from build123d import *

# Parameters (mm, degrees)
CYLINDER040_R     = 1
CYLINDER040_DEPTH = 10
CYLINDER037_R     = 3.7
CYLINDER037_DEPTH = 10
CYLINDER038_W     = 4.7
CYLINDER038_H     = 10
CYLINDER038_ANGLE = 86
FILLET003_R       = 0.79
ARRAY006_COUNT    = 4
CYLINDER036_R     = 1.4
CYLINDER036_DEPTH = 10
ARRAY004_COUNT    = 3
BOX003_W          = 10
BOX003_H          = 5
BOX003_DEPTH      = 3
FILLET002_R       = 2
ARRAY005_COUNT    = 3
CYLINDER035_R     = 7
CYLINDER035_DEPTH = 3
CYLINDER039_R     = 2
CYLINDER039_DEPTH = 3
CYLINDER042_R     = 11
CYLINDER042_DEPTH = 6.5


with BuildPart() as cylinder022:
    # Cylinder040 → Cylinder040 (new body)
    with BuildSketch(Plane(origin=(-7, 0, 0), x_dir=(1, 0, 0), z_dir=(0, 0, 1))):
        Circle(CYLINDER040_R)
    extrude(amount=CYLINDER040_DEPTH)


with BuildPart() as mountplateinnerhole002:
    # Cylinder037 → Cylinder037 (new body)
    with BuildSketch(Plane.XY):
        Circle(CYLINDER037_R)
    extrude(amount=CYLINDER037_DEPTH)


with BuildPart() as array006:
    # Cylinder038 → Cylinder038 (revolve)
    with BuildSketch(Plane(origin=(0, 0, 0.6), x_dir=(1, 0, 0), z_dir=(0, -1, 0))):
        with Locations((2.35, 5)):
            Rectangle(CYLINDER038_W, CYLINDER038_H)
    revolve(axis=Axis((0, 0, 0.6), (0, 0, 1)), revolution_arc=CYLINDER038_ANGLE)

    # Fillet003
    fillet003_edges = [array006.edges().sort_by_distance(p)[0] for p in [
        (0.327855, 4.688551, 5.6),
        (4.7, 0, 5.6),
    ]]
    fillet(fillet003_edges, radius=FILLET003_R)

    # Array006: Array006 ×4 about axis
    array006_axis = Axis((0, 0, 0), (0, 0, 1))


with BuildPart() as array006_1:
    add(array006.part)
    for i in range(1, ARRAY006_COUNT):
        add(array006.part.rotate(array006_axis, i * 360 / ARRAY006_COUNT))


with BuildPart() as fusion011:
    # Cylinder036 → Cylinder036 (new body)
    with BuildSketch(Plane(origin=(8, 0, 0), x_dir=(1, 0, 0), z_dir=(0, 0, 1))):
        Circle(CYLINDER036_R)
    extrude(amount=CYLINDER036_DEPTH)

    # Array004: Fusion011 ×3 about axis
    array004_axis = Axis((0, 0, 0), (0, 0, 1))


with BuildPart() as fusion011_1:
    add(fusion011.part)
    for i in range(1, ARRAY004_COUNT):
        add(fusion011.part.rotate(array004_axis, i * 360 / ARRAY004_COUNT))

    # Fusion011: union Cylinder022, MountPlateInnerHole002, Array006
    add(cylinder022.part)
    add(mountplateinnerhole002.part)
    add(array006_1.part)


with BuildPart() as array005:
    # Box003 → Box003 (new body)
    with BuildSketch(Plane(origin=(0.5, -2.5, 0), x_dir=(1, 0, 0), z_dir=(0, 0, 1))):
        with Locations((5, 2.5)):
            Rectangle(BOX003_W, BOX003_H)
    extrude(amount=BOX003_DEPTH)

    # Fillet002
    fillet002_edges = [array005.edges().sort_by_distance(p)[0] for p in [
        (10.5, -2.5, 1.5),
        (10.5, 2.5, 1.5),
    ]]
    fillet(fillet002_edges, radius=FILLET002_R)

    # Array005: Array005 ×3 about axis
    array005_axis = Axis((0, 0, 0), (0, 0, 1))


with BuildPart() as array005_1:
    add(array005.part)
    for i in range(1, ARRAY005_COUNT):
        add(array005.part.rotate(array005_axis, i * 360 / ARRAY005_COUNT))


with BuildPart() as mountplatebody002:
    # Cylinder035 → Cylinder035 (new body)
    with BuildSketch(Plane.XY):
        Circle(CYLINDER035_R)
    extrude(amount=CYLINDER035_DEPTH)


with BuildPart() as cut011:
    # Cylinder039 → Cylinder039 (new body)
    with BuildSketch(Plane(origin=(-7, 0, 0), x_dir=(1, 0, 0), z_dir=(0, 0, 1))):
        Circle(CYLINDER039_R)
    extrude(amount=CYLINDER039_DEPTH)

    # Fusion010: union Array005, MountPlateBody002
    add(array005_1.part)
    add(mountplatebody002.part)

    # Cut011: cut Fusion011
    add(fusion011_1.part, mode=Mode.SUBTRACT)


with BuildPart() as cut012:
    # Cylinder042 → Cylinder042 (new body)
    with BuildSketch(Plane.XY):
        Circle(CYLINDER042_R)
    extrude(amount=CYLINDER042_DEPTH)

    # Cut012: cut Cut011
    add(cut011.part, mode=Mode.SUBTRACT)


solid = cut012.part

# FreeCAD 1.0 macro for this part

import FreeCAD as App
import Part
import Sketcher
from FreeCAD import Vector


def edges_at(feature, points):
    """Names of the edges that pass closest to the given points."""
    edges = feature.Shape.Edges
    near = lambda p: min(range(len(edges)), key=lambda i: edges[i].distToShape(Part.Vertex(*p))[0])
    return sorted({f"Edge{near(p) + 1}" for p in points})


def add_polygon(sketch, points):
    """Adds a closed chain of lines whose ends are joined by coincident constraints."""
    first, n = sketch.GeometryCount, len(points)
    for a, b in zip(points, points[1:] + points[:1]):
        sketch.addGeometry(Part.LineSegment(App.Vector(*a, 0), App.Vector(*b, 0)), False)
    for i in range(n):
        sketch.addConstraint(Sketcher.Constraint("Coincident", first + i, 2, first + (i + 1) % n, 1))

doc = App.newDocument("Part")
params = doc.addObject("Spreadsheet::Sheet", "Params")
for row, (alias, value) in enumerate([
    ("sketch1_diameter", "2 mm"),
    ("pad1_length", "10 mm"),
    ("sketch2_diameter", "7.4 mm"),
    ("pad2_length", "10 mm"),
    ("sketch3_height", "10 mm"),
    ("sketch3_width", "4.7 mm"),
    ("revolution_angle", "86 deg"),
    ("fillet_radius", "0.79 mm"),
    ("sketch4_diameter", "2.8 mm"),
    ("pad3_length", "10 mm"),
    ("sketch5_width", "10 mm"),
    ("sketch5_height", "5 mm"),
    ("pad4_length", "3 mm"),
    ("fillet2_radius", "2 mm"),
    ("sketch6_diameter", "14 mm"),
    ("pad5_length", "3 mm"),
    ("sketch7_diameter", "4 mm"),
    ("pad6_length", "3 mm"),
    ("sketch8_diameter", "22 mm"),
    ("pad7_length", "6.5 mm"),
], start=1):
    params.set(f"A{row}", alias)
    params.set(f"B{row}", "=" + value)
    params.setAlias(f"B{row}", alias)

body = doc.addObject("PartDesign::Body", "Body")

# Sketch on XY plane
sketch1 = doc.addObject("Sketcher::SketchObject", "Sketch")
body.addObject(sketch1)
sketch1.AttachmentSupport = (doc.XY_Plane, [""])
sketch1.MapMode = "FlatFace"
sketch1.addGeometry(Part.Circle(Vector(-7, 0, 0), Vector(0, 0, 1), 1), False)
sketch1.addConstraint([
    Sketcher.Constraint("PointOnObject", 0, 3, -1),
    Sketcher.Constraint("Diameter", 0, 2.0),
    Sketcher.Constraint("DistanceX", 0, 3, -1, 1, 7.0),
])
sketch1.setExpression("Constraints[1]", "Params.sketch1_diameter")
pad1 = doc.addObject("PartDesign::Pad", "Pad")
body.addObject(pad1)
pad1.Profile = sketch1
pad1.setExpression("Length", "Params.pad1_length")
body2 = doc.addObject("PartDesign::Body", "Body001")

# Sketch on XY plane
sketch2 = doc.addObject("Sketcher::SketchObject", "Sketch001")
body2.addObject(sketch2)
sketch2.AttachmentSupport = (doc.getObject("XY_Plane001"), [""])
sketch2.MapMode = "FlatFace"
sketch2.addGeometry(Part.Circle(Vector(0, 0, 0), Vector(0, 0, 1), 3.7), False)
sketch2.addConstraint([
    Sketcher.Constraint("Coincident", 0, 3, -1, 1),
    Sketcher.Constraint("Diameter", 0, 7.4),
])
sketch2.setExpression("Constraints[1]", "Params.sketch2_diameter")
pad2 = doc.addObject("PartDesign::Pad", "Pad001")
body2.addObject(pad2)
pad2.Profile = sketch2
pad2.setExpression("Length", "Params.pad2_length")
body3 = doc.addObject("PartDesign::Body", "Body002")

# Sketch on XZ plane
sketch3 = doc.addObject("Sketcher::SketchObject", "Sketch002")
body3.addObject(sketch3)
sketch3.AttachmentSupport = (doc.getObject("XZ_Plane002"), [""])
sketch3.MapMode = "FlatFace"
add_polygon(sketch3, [(0, 10.6), (0, 0.6), (4.7, 0.6), (4.7, 10.6)])  # lines 0-3
sketch3.addConstraint([
    Sketcher.Constraint("Vertical", 0),
    Sketcher.Constraint("Horizontal", 1),
    Sketcher.Constraint("Vertical", 2),
    Sketcher.Constraint("Horizontal", 3),
    Sketcher.Constraint("PointOnObject", 0, 2, -2),
    Sketcher.Constraint("DistanceY", 0, 2, 0, 1, 10.0),
    Sketcher.Constraint("DistanceX", 1, 1, 1, 2, 4.7),
    Sketcher.Constraint("DistanceY", -1, 1, 0, 2, 0.6),
])
sketch3.setExpression("Constraints[9]", "Params.sketch3_height")
sketch3.setExpression("Constraints[10]", "Params.sketch3_width")
revolution = doc.addObject("PartDesign::Revolution", "Revolution")
body3.addObject(revolution)
revolution.Profile = sketch3
revolution.ReferenceAxis = (sketch3, ["V_Axis"])
revolution.setExpression("Angle", "Params.revolution_angle")
doc.recompute()

fillet = doc.addObject("PartDesign::Fillet", "Fillet")
body3.addObject(fillet)
fillet.Base = (revolution, edges_at(revolution, [(0.328, 4.689, 5.6), (4.7, 0, 5.6)]))
fillet.setExpression("Radius", "Params.fillet_radius")
body4 = doc.addObject("PartDesign::Body", "Body003")
body4.AllowCompound = True
doc.recompute()

body4.BaseFeature = body3
doc.recompute()

body5 = doc.addObject("PartDesign::Body", "Body004")
body5.BaseFeature = body3
body5.Placement = App.Placement(Vector(0, 0, 0), App.Rotation(Vector(0, 0, 1), 90))
boolean = doc.addObject("PartDesign::Boolean", "Boolean")
body4.addObject(boolean)
boolean.Type = "Fuse"
boolean.addObjects([body5])
doc.recompute()

body6 = doc.addObject("PartDesign::Body", "Body005")
body6.BaseFeature = body3
body6.Placement = App.Placement(Vector(0, 0, 0), App.Rotation(Vector(0, 0, 1), 180))
boolean2 = doc.addObject("PartDesign::Boolean", "Boolean001")
body4.addObject(boolean2)
boolean2.Type = "Fuse"
boolean2.addObjects([body6])
doc.recompute()

body3.Placement = App.Placement(Vector(0, 0, 0), App.Rotation(Vector(0, 0, 1), 270))
boolean3 = doc.addObject("PartDesign::Boolean", "Boolean002")
body4.addObject(boolean3)
boolean3.Type = "Fuse"
boolean3.addObjects([body3])
body7 = doc.addObject("PartDesign::Body", "Body006")

# Sketch on XY plane
sketch4 = doc.addObject("Sketcher::SketchObject", "Sketch003")
body7.addObject(sketch4)
sketch4.AttachmentSupport = (doc.getObject("XY_Plane006"), [""])
sketch4.MapMode = "FlatFace"
sketch4.addGeometry(Part.Circle(Vector(8, 0, 0), Vector(0, 0, 1), 1.4), False)
sketch4.addConstraint([
    Sketcher.Constraint("PointOnObject", 0, 3, -1),
    Sketcher.Constraint("Diameter", 0, 2.8),
    Sketcher.Constraint("DistanceX", -1, 1, 0, 3, 8.0),
])
sketch4.setExpression("Constraints[1]", "Params.sketch4_diameter")
pad3 = doc.addObject("PartDesign::Pad", "Pad002")
body7.addObject(pad3)
pad3.Profile = sketch4
pad3.setExpression("Length", "Params.pad3_length")
body8 = doc.addObject("PartDesign::Body", "Body007")
body8.AllowCompound = True
doc.recompute()

body8.BaseFeature = body7
doc.recompute()

body9 = doc.addObject("PartDesign::Body", "Body008")
body9.BaseFeature = body7
body9.Placement = App.Placement(Vector(0, 0, 0), App.Rotation(Vector(0, 0, 1), 120))
boolean4 = doc.addObject("PartDesign::Boolean", "Boolean003")
body8.addObject(boolean4)
boolean4.Type = "Fuse"
boolean4.addObjects([body9])
doc.recompute()

body7.Placement = App.Placement(Vector(0, 0, 0), App.Rotation(Vector(0, 0, 1), 240))
boolean5 = doc.addObject("PartDesign::Boolean", "Boolean004")
body8.addObject(boolean5)
boolean5.Type = "Fuse"
boolean5.addObjects([body7])
doc.recompute()

boolean6 = doc.addObject("PartDesign::Boolean", "Boolean005")
body8.addObject(boolean6)
boolean6.Type = "Fuse"
boolean6.addObjects([body])
doc.recompute()

boolean7 = doc.addObject("PartDesign::Boolean", "Boolean006")
body8.addObject(boolean7)
boolean7.Type = "Fuse"
boolean7.addObjects([body2])
doc.recompute()

boolean8 = doc.addObject("PartDesign::Boolean", "Boolean007")
body8.addObject(boolean8)
boolean8.Type = "Fuse"
boolean8.addObjects([body4])
body10 = doc.addObject("PartDesign::Body", "Body009")

# Sketch on XY plane
sketch5 = doc.addObject("Sketcher::SketchObject", "Sketch004")
body10.addObject(sketch5)
sketch5.AttachmentSupport = (doc.getObject("XY_Plane009"), [""])
sketch5.MapMode = "FlatFace"
add_polygon(sketch5, [(0.5, 2.5), (0.5, -2.5), (10.5, -2.5), (10.5, 2.5)])  # lines 0-3
sketch5.addConstraint([
    Sketcher.Constraint("Vertical", 0),
    Sketcher.Constraint("Horizontal", 1),
    Sketcher.Constraint("Vertical", 2),
    Sketcher.Constraint("Horizontal", 3),
    Sketcher.Constraint("DistanceX", 1, 1, 1, 2, 10.0),
    Sketcher.Constraint("DistanceY", 0, 2, 0, 1, 5.0),
    Sketcher.Constraint("DistanceX", -1, 1, 0, 2, 0.5),
    Sketcher.Constraint("DistanceY", 0, 2, -1, 1, 2.5),
])
sketch5.setExpression("Constraints[8]", "Params.sketch5_width")
sketch5.setExpression("Constraints[9]", "Params.sketch5_height")
pad4 = doc.addObject("PartDesign::Pad", "Pad003")
body10.addObject(pad4)
pad4.Profile = sketch5
pad4.setExpression("Length", "Params.pad4_length")
doc.recompute()

fillet2 = doc.addObject("PartDesign::Fillet", "Fillet001")
body10.addObject(fillet2)
fillet2.Base = (pad4, edges_at(pad4, [(10.5, -2.5, 1.5), (10.5, 2.5, 1.5)]))
fillet2.setExpression("Radius", "Params.fillet2_radius")
body11 = doc.addObject("PartDesign::Body", "Body010")
doc.recompute()

body11.BaseFeature = body10
doc.recompute()

body12 = doc.addObject("PartDesign::Body", "Body011")
body12.BaseFeature = body10
body12.Placement = App.Placement(Vector(0, 0, 0), App.Rotation(Vector(0, 0, 1), 120))
boolean9 = doc.addObject("PartDesign::Boolean", "Boolean008")
body11.addObject(boolean9)
boolean9.Type = "Fuse"
boolean9.addObjects([body12])
doc.recompute()

body10.Placement = App.Placement(Vector(0, 0, 0), App.Rotation(Vector(0, 0, 1), 240))
boolean10 = doc.addObject("PartDesign::Boolean", "Boolean009")
body11.addObject(boolean10)
boolean10.Type = "Fuse"
boolean10.addObjects([body10])
body13 = doc.addObject("PartDesign::Body", "Body012")

# Sketch on XY plane
sketch6 = doc.addObject("Sketcher::SketchObject", "Sketch005")
body13.addObject(sketch6)
sketch6.AttachmentSupport = (doc.getObject("XY_Plane012"), [""])
sketch6.MapMode = "FlatFace"
sketch6.addGeometry(Part.Circle(Vector(0, 0, 0), Vector(0, 0, 1), 7), False)
sketch6.addConstraint([
    Sketcher.Constraint("Coincident", 0, 3, -1, 1),
    Sketcher.Constraint("Diameter", 0, 14.0),
])
sketch6.setExpression("Constraints[1]", "Params.sketch6_diameter")
pad5 = doc.addObject("PartDesign::Pad", "Pad004")
body13.addObject(pad5)
pad5.Profile = sketch6
pad5.setExpression("Length", "Params.pad5_length")
body14 = doc.addObject("PartDesign::Body", "Body013")
body14.AllowCompound = True

# Sketch on XY plane
sketch7 = doc.addObject("Sketcher::SketchObject", "Sketch006")
body14.addObject(sketch7)
sketch7.AttachmentSupport = (doc.getObject("XY_Plane013"), [""])
sketch7.MapMode = "FlatFace"
sketch7.addGeometry(Part.Circle(Vector(-7, 0, 0), Vector(0, 0, 1), 2), False)
sketch7.addConstraint([
    Sketcher.Constraint("PointOnObject", 0, 3, -1),
    Sketcher.Constraint("Diameter", 0, 4.0),
    Sketcher.Constraint("DistanceX", 0, 3, -1, 1, 7.0),
])
sketch7.setExpression("Constraints[1]", "Params.sketch7_diameter")
pad6 = doc.addObject("PartDesign::Pad", "Pad005")
body14.addObject(pad6)
pad6.Profile = sketch7
pad6.setExpression("Length", "Params.pad6_length")
doc.recompute()

boolean11 = doc.addObject("PartDesign::Boolean", "Boolean010")
body14.addObject(boolean11)
boolean11.Type = "Fuse"
boolean11.addObjects([body11])
doc.recompute()

boolean12 = doc.addObject("PartDesign::Boolean", "Boolean011")
body14.addObject(boolean12)
boolean12.Type = "Fuse"
boolean12.addObjects([body13])
doc.recompute()

boolean13 = doc.addObject("PartDesign::Boolean", "Boolean012")
body14.addObject(boolean13)
boolean13.Type = "Cut"
boolean13.addObjects([body8])
body15 = doc.addObject("PartDesign::Body", "Body014")

# Sketch on XY plane
sketch8 = doc.addObject("Sketcher::SketchObject", "Sketch007")
body15.addObject(sketch8)
sketch8.AttachmentSupport = (doc.getObject("XY_Plane014"), [""])
sketch8.MapMode = "FlatFace"
sketch8.addGeometry(Part.Circle(Vector(0, 0, 0), Vector(0, 0, 1), 11), False)
sketch8.addConstraint([
    Sketcher.Constraint("Coincident", 0, 3, -1, 1),
    Sketcher.Constraint("Diameter", 0, 22.0),
])
sketch8.setExpression("Constraints[1]", "Params.sketch8_diameter")
pad7 = doc.addObject("PartDesign::Pad", "Pad006")
body15.addObject(pad7)
pad7.Profile = sketch8
pad7.setExpression("Length", "Params.pad7_length")
doc.recompute()

boolean14 = doc.addObject("PartDesign::Boolean", "Boolean013")
body15.addObject(boolean14)
boolean14.Type = "Cut"
boolean14.addObjects([body14])

doc.recompute()
